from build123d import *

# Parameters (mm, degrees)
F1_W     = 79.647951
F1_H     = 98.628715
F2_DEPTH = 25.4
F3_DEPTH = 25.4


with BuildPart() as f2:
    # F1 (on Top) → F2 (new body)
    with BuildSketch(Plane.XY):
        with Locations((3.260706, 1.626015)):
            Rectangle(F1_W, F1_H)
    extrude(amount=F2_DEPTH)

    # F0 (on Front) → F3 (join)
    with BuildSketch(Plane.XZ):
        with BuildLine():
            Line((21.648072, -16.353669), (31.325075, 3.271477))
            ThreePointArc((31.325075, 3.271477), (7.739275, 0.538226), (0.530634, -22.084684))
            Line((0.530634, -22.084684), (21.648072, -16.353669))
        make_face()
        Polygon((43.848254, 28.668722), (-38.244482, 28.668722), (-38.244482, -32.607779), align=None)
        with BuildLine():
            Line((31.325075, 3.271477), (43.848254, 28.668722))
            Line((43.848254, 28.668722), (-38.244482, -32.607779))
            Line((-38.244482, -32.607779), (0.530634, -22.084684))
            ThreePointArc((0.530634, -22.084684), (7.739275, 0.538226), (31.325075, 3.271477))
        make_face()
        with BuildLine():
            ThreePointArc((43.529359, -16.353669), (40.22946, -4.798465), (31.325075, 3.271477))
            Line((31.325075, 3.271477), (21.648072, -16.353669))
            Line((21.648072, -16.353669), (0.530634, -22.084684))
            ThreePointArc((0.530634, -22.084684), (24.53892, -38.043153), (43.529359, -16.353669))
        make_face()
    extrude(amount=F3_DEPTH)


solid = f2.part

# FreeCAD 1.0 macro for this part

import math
import FreeCAD as App
import Part
import Sketcher
from FreeCAD import Vector
Q = App.Units.Quantity


def add_polygon(sketch, points):
    """Adds a closed chain of lines whose ends are joined by coincident constraints."""
    first, n = sketch.GeometryCount, len(points)
    for a, b in zip(points, points[1:] + points[:1]):
        sketch.addGeometry(Part.LineSegment(App.Vector(*a, 0), App.Vector(*b, 0)), False)
    for i in range(n):
        sketch.addConstraint(Sketcher.Constraint("Coincident", first + i, 2, first + (i + 1) % n, 1))

doc = App.newDocument("Part")
body = doc.addObject("PartDesign::Body", "Body")

sketch1 = body.newObject("Sketcher::SketchObject", "Sketch")
sketch1.AttachmentSupport = (doc.getObject("XY_Plane"), [""])
sketch1.MapMode = "FlatFace"
add_polygon(sketch1, [(-37, 51), (-37, -48), (43, -48), (43, 51)])
sketch1.addConstraint([
    Sketcher.Constraint("Vertical", 0),
    Sketcher.Constraint("Horizontal", 1),
    Sketcher.Constraint("Vertical", 2),
    Sketcher.Constraint("Horizontal", 3),
    Sketcher.Constraint("DistanceX", 1, 1, 1, 2, 79.647951),
    Sketcher.Constraint("DistanceY", 0, 2, 0, 1, 98.628715),
    Sketcher.Constraint("DistanceX", 0, 2, -1, 1, 36.563269),
    Sketcher.Constraint("DistanceY", 0, 2, -1, 1, 47.688342),
])
pad1 = body.newObject("PartDesign::Pad", "Pad")
pad1.Profile = sketch1
pad1.Length = Q("1 in")

sketch2 = body.newObject("Sketcher::SketchObject", "Sketch001")
sketch2.AttachmentSupport = (doc.getObject("XZ_Plane"), [""])
sketch2.MapMode = "FlatFace"
sketch2.addGeometry([
    Part.LineSegment(Vector(-38, -33, 0), Vector(1, -22, 0)),
    Part.ArcOfCircle(Part.Circle(Vector(22, -16, 0), Vector(0, 0, 1), 22), math.radians(-165), math.radians(0)),
    Part.ArcOfCircle(Part.Circle(Vector(22, -16, 0), Vector(0, 0, 1), 22), math.radians(0), math.radians(64)),
    Part.LineSegment(Vector(31, 3, 0), Vector(44, 29, 0)),
    Part.LineSegment(Vector(44, 29, 0), Vector(-38, 29, 0)),
    Part.LineSegment(Vector(-38, 29, 0), Vector(-38, -33, 0)),
], False)
sketch2.addConstraint([
    Sketcher.Constraint("Coincident", 0, 2, 1, 1),
    Sketcher.Constraint("Tangent", 1, 2, 2, 1),
    Sketcher.Constraint("Coincident", 2, 2, 3, 1),
    Sketcher.Constraint("Coincident", 3, 2, 4, 1),
    Sketcher.Constraint("Coincident", 4, 2, 5, 1),
    Sketcher.Constraint("Coincident", 5, 2, 0, 1),
    Sketcher.Constraint("Horizontal", 4),
    Sketcher.Constraint("Vertical", 5),
    Sketcher.Constraint("Equal", 1, 2),
    Sketcher.Constraint("Horizontal", 2, 3, 1, 2),
    Sketcher.Constraint("Radius", 2, 21.881289),
    Sketcher.Constraint("DistanceY", 5, 2, 5, 1, 61.276501),
    Sketcher.Constraint("Distance", 0, 40.17767),
    Sketcher.Constraint("DistanceX", 4, 2, 4, 1, 82.092736),
    Sketcher.Constraint("DistanceX", -1, 1, 1, 3, 21.648072),
    Sketcher.Constraint("DistanceY", 1, 3, -1, 1, 16.353669),
    Sketcher.Constraint("DistanceY", -1, 1, 3, 2, 28.668722),
    Sketcher.Constraint("DistanceX", 0, 2, 2, 2, 30.794441),
    Sketcher.Constraint("DistanceY", 0, 2, 2, 2, 25.356161),
])
pad2 = body.newObject("PartDesign::Pad", "Pad001")
pad2.Profile = sketch2
pad2.Length = Q("1 in")

doc.recompute()
